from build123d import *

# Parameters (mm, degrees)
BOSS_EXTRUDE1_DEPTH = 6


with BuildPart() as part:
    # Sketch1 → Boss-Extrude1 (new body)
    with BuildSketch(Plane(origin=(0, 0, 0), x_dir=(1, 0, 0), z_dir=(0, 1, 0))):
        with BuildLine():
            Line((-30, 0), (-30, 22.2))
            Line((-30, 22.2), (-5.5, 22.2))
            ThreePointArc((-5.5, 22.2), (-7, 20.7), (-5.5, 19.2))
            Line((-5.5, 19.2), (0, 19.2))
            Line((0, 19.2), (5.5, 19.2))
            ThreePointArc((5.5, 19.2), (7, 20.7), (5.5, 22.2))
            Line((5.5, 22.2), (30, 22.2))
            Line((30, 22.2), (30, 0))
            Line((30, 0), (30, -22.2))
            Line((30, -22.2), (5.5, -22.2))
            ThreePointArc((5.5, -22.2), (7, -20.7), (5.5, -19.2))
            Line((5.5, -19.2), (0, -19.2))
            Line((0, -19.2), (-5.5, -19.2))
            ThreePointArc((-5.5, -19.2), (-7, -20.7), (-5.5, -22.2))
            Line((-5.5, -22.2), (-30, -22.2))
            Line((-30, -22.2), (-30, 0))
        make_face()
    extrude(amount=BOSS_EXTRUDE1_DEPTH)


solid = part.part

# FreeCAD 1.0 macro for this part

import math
import FreeCAD as App
import Part
import Sketcher
from FreeCAD import Vector

doc = App.newDocument("Part")
params = doc.addObject("Spreadsheet::Sheet", "Params")
for row, (alias, value) in enumerate([
    ("sketch1_radius", "1.5 mm"),
    ("sketch1_width", "11 mm"),
    ("sketch1_width2", "24.5 mm"),
    ("sketch1_height", "44.4 mm"),
    ("pad1_length", "6 mm"),
], start=1):
    params.set(f"A{row}", alias)
    params.set(f"B{row}", "=" + value)
    params.setAlias(f"B{row}", alias)

body = doc.addObject("PartDesign::Body", "Body")

# Sketch on XZ plane
sketch1 = doc.addObject("Sketcher::SketchObject", "Sketch")
body.addObject(sketch1)
sketch1.AttachmentSupport = (doc.XZ_Plane, [""])
sketch1.MapMode = "FlatFace"
sketch1.addGeometry([
    Part.LineSegment(Vector(-5.5, -22.2, 0), Vector(-30, -22.2, 0)),  # 0
    Part.LineSegment(Vector(-30, -22.2, 0), Vector(-30, 22.2, 0)),  # 1
    Part.LineSegment(Vector(-30, 22.2, 0), Vector(-5.5, 22.2, 0)),  # 2
    Part.ArcOfCircle(Part.Circle(Vector(-5.5, 20.7, 0), Vector(0, 0, 1), 1.5), math.radians(90), math.radians(270)),  # 3
    Part.LineSegment(Vector(-5.5, 19.2, 0), Vector(5.5, 19.2, 0)),  # 4
    Part.ArcOfCircle(Part.Circle(Vector(5.5, 20.7, 0), Vector(0, 0, 1), 1.5), math.radians(-90), math.radians(90)),  # 5
    Part.LineSegment(Vector(5.5, 22.2, 0), Vector(30, 22.2, 0)),  # 6
    Part.LineSegment(Vector(30, 22.2, 0), Vector(30, -22.2, 0)),  # 7
    Part.LineSegment(Vector(30, -22.2, 0), Vector(5.5, -22.2, 0)),  # 8
    Part.ArcOfCircle(Part.Circle(Vector(5.5, -20.7, 0), Vector(0, 0, 1), 1.5), math.radians(-90), math.radians(90)),  # 9
    Part.LineSegment(Vector(5.5, -19.2, 0), Vector(-5.5, -19.2, 0)),  # 10
    Part.ArcOfCircle(Part.Circle(Vector(-5.5, -20.7, 0), Vector(0, 0, 1), 1.5), math.radians(90), math.radians(270)),  # 11
], False)
sketch1.addConstraint([
    Sketcher.Constraint("Coincident", 0, 2, 1, 1),
    Sketcher.Constraint("Coincident", 1, 2, 2, 1),
    Sketcher.Constraint("Tangent", 2, 2, 3, 1),
    Sketcher.Constraint("Tangent", 3, 2, 4, 1),
    Sketcher.Constraint("Tangent", 4, 2, 5, 1),
    Sketcher.Constraint("Tangent", 5, 2, 6, 1),
    Sketcher.Constraint("Coincident", 6, 2, 7, 1),
    Sketcher.Constraint("Coincident", 7, 2, 8, 1),
    Sketcher.Constraint("Tangent", 8, 2, 9, 1),
    Sketcher.Constraint("Tangent", 9, 2, 10, 1),
    Sketcher.Constraint("Tangent", 10, 2, 11, 1),
    Sketcher.Constraint("Tangent", 11, 2, 0, 1),
    Sketcher.Constraint("Horizontal", 0),
    Sketcher.Constraint("Vertical", 1),
    Sketcher.Constraint("Horizontal", 2),
    Sketcher.Constraint("Horizontal", 4),
    Sketcher.Constraint("Horizontal", 6),
    Sketcher.Constraint("Vertical", 7),
    Sketcher.Constraint("Horizontal", 8),
    Sketcher.Constraint("Horizontal", 10),
    Sketcher.Constraint("Equal", 3, 5),
    Sketcher.Constraint("Equal", 5, 9),
    Sketcher.Constraint("Equal", 9, 11),
    Sketcher.Constraint("Symmetric", 3, 3, 9, 3, -1, 1),
    Sketcher.Constraint("Vertical", 5, 3, 9, 3),
    Sketcher.Constraint("Vertical", 3, 3, 11, 3),
    Sketcher.Constraint("Equal", 2, 6),
    Sketcher.Constraint("Radius", 3, 1.5),
    Sketcher.Constraint("DistanceX", 4, 1, 4, 2, 11.0),
    Sketcher.Constraint("DistanceX", 0, 2, 0, 1, 24.5),
    Sketcher.Constraint("DistanceY", 1, 1, 1, 2, 44.4),
])
sketch1.setExpression("Constraints[27]", "Params.sketch1_radius")
sketch1.setExpression("Constraints[28]", "Params.sketch1_width")
sketch1.setExpression("Constraints[29]", "Params.sketch1_width2")
sketch1.setExpression("Constraints[30]", "Params.sketch1_height")
pad1 = doc.addObject("PartDesign::Pad", "Pad")
body.addObject(pad1)
pad1.Profile = sketch1
pad1.setExpression("Length", "Params.pad1_length")
pad1.Reversed = True

doc.recompute()
